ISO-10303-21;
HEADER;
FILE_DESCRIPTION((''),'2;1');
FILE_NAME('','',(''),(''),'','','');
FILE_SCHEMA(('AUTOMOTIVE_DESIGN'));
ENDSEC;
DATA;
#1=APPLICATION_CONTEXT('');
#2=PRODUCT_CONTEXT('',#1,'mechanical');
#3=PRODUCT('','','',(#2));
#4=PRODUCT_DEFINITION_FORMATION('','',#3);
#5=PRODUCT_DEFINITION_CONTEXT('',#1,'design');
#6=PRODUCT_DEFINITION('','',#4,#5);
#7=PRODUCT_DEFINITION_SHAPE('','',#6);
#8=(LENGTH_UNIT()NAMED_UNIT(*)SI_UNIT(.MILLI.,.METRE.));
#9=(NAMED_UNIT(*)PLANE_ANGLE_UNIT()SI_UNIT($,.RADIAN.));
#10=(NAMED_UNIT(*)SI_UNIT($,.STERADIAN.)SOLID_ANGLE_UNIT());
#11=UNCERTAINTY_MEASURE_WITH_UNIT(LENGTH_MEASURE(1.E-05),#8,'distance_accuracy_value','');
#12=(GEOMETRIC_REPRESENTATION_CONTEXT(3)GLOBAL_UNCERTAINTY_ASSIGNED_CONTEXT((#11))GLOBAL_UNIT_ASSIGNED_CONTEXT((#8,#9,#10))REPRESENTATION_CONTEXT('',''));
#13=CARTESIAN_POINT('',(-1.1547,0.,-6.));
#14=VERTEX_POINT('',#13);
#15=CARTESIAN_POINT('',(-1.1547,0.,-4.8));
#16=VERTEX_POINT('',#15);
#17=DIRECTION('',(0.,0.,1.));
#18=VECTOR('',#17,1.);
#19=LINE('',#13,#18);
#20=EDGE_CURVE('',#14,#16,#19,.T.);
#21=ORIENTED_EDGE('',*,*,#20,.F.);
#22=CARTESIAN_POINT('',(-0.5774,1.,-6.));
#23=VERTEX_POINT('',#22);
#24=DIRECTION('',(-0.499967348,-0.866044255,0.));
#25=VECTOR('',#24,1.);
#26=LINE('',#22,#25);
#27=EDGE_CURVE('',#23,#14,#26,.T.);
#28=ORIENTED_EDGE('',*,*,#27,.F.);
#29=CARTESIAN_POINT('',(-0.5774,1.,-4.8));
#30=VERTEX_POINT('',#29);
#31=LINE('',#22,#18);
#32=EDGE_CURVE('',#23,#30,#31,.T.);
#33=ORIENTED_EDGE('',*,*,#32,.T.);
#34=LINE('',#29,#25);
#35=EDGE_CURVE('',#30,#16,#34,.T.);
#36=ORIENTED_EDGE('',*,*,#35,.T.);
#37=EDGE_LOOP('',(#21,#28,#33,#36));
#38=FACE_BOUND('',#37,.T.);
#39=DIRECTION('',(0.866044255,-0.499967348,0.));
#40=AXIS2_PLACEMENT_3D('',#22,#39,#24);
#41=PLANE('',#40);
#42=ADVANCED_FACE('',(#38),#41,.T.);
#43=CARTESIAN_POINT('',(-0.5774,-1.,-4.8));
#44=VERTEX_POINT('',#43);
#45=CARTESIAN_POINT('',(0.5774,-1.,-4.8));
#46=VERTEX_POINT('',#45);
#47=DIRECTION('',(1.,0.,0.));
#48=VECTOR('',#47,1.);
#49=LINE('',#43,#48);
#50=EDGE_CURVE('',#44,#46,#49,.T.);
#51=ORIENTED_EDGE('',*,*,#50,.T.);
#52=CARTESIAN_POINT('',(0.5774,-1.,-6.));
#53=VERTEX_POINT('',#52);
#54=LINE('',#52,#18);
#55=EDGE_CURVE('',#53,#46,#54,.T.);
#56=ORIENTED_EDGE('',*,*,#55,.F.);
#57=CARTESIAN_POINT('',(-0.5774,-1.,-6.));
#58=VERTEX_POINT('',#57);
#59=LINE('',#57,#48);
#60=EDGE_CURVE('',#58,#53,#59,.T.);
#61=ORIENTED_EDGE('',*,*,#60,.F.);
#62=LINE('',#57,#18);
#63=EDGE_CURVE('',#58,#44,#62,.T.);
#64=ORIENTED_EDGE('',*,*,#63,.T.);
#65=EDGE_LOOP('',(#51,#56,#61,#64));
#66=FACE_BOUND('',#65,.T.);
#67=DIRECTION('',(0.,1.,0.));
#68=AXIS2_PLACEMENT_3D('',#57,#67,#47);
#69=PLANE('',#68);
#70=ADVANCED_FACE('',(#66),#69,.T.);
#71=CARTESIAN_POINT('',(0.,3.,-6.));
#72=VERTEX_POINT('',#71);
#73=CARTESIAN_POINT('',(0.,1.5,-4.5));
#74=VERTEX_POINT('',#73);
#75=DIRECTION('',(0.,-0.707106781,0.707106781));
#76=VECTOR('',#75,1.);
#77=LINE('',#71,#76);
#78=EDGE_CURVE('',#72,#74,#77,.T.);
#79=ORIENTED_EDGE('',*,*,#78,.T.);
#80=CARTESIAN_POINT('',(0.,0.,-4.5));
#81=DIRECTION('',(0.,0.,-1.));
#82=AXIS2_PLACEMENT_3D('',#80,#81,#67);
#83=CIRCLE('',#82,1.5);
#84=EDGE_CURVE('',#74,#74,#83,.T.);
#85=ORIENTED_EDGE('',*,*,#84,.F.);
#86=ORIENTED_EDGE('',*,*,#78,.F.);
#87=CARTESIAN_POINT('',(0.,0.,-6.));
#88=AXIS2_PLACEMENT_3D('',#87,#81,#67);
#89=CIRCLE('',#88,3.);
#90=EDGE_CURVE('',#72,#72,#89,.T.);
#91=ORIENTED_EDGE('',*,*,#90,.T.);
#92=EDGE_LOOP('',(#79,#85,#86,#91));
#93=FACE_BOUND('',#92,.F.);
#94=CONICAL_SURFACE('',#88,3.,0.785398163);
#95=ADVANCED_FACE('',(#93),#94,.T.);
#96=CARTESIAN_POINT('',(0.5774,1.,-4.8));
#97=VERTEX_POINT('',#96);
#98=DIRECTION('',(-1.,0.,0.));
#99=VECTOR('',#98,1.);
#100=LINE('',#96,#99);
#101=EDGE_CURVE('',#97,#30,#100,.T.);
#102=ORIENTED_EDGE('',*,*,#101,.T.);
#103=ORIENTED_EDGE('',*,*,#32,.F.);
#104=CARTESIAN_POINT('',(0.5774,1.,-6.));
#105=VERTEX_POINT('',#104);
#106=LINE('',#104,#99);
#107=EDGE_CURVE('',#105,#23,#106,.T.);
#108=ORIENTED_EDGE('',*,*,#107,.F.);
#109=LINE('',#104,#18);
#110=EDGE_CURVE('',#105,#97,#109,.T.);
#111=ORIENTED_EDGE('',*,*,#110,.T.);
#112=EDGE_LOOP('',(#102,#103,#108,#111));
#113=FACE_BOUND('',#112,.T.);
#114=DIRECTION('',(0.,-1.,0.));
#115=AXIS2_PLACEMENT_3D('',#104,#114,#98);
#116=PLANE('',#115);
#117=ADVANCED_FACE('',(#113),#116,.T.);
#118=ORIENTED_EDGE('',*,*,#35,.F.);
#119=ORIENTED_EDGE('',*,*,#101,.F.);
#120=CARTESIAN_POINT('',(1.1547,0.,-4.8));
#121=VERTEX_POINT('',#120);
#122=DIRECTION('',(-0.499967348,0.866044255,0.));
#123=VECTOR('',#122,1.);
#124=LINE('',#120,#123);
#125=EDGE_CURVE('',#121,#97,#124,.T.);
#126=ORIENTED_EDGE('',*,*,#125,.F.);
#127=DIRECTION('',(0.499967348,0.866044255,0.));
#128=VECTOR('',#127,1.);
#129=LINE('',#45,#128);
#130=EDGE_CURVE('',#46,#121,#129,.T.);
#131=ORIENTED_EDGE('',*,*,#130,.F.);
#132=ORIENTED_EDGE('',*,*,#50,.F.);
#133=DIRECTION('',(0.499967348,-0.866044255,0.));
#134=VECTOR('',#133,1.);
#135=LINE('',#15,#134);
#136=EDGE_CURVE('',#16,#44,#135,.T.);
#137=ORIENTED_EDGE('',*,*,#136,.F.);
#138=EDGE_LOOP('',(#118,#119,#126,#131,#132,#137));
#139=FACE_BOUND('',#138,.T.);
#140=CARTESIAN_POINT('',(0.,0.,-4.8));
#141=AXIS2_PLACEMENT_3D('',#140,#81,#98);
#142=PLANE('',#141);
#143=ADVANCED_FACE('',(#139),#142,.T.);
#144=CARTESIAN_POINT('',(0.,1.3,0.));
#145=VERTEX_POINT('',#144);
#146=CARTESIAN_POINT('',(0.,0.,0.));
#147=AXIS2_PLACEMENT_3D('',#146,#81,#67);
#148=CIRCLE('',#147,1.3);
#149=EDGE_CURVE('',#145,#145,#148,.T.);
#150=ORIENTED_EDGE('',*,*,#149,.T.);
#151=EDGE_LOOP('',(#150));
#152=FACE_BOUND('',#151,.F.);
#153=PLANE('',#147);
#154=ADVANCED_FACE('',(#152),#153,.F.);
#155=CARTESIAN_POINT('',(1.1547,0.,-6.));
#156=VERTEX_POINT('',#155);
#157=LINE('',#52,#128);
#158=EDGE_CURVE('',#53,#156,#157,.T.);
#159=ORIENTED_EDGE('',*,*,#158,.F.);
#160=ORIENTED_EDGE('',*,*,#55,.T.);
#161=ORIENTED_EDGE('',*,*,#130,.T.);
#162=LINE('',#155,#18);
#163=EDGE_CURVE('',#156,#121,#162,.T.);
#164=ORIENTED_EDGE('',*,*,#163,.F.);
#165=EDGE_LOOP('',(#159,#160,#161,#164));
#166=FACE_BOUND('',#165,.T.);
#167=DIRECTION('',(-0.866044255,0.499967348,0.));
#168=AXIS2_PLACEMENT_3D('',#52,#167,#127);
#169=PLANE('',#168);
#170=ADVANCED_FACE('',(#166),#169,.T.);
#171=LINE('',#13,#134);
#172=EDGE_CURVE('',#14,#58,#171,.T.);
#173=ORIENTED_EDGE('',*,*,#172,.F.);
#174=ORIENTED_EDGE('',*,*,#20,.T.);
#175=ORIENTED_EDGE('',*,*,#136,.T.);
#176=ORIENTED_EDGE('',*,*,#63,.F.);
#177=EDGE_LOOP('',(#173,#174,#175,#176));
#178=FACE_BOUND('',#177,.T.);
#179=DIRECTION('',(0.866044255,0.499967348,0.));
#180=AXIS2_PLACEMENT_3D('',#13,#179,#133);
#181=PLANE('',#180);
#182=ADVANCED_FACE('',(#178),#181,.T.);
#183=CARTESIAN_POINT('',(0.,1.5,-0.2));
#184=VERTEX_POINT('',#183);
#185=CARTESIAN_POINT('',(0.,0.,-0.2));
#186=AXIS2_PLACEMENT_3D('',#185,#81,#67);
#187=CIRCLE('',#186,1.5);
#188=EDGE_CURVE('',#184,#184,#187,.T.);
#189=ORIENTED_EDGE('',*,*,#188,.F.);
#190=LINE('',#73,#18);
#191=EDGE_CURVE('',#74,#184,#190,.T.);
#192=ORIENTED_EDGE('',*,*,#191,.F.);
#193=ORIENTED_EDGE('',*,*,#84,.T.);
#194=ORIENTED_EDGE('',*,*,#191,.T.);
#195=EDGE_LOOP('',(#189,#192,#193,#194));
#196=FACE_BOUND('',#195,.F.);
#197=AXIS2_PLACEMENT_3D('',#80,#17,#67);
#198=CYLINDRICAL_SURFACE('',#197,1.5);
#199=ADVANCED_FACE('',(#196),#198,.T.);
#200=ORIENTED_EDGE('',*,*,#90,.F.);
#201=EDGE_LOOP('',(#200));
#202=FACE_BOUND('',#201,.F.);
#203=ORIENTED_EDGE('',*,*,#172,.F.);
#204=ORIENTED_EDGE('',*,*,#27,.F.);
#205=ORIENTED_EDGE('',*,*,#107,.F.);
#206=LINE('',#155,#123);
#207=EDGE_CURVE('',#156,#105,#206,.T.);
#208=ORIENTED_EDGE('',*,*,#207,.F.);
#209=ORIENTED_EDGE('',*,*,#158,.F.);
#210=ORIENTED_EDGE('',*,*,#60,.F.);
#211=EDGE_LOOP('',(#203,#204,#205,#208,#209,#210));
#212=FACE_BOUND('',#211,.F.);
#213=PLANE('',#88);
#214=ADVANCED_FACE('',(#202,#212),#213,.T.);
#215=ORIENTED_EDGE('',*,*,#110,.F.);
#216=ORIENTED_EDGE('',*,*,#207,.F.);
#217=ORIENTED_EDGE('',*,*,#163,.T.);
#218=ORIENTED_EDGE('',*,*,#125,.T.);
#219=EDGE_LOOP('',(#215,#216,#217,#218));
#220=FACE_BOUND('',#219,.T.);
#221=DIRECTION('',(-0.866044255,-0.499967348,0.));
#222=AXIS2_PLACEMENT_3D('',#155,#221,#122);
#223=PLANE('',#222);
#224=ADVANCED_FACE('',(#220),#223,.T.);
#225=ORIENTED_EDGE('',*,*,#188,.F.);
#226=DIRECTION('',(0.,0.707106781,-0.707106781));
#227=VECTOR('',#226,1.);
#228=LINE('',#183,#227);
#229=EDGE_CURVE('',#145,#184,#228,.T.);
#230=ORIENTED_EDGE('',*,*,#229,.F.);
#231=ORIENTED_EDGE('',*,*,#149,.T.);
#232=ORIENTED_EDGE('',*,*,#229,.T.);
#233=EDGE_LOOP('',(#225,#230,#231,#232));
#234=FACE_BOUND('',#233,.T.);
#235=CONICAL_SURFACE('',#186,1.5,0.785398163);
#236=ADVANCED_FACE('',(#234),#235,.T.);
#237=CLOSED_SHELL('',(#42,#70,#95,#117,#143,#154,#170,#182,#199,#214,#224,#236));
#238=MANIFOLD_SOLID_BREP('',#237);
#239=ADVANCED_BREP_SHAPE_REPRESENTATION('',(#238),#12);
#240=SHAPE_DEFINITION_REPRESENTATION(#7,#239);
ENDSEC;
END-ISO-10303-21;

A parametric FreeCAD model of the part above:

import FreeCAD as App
import Part
import Sketcher

V = App.Vector
Q = App.Units.Quantity


def edges_at(feature, points):
    """Names of the edges that pass closest to the given points."""
    edges = feature.Shape.Edges
    near = lambda p: min(range(len(edges)), key=lambda i: edges[i].distToShape(Part.Vertex(*p))[0])
    return sorted({f"Edge{near(p) + 1}" for p in points})

doc = App.newDocument("Part")
body = doc.addObject("PartDesign::Body", "Body")

# Sketch on YZ plane
sketch1 = body.newObject("Sketcher::SketchObject", "Sketch")
sketch1.AttachmentSupport = (doc.getObject("YZ_Plane"), [""])
sketch1.MapMode = "FlatFace"
sketch1.addGeometry([
    Part.LineSegment(V(1.5, 0, 0), V(0, 0, 0)),  # 0
    Part.LineSegment(V(0, 0, 0), V(0, -6, 0)),  # 1
    Part.LineSegment(V(0, -6, 0), V(3, -6, 0)),  # 2
    Part.LineSegment(V(3, -6, 0), V(1.5, -4.5, 0)),  # 3
    Part.LineSegment(V(1.5, -4.5, 0), V(1.5, 0, 0)),  # 4
], False)
sketch1.addConstraint([
    Sketcher.Constraint("Coincident", 0, 2, 1, 1),
    Sketcher.Constraint("Coincident", 1, 2, 2, 1),
    Sketcher.Constraint("Coincident", 2, 2, 3, 1),
    Sketcher.Constraint("Coincident", 3, 2, 4, 1),
    Sketcher.Constraint("Coincident", 4, 2, 0, 1),
    Sketcher.Constraint("Horizontal", 0),
    Sketcher.Constraint("Vertical", 1),
    Sketcher.Constraint("Horizontal", 2),
    Sketcher.Constraint("Vertical", 4),
    Sketcher.Constraint("Coincident", 0, 2, -1, 1),
    Sketcher.Constraint("DistanceX", 2, 1, 2, 2, Q("3 mm")),
    Sketcher.Constraint("DistanceY", 1, 2, 1, 1, Q("6 mm")),
    Sketcher.Constraint("Angle", 3, Q("135 deg")),
    Sketcher.Constraint("DistanceX", 0, 2, 0, 1, Q("1.5 mm")),
])
revolution = body.newObject("PartDesign::Revolution", "Revolution")
revolution.Profile = sketch1
revolution.ReferenceAxis = (sketch1, ["V_Axis"])
revolution.Angle = 360

# Sketch on XY plane
sketch2 = body.newObject("Sketcher::SketchObject", "Sketch001")
sketch2.AttachmentSupport = (doc.getObject("XY_Plane"), [""])
sketch2.MapMode = "FlatFace"
sketch2.AttachmentOffset = App.Placement(V(0, 0, -6), App.Rotation())
sketch2.addGeometry([
    Part.LineSegment(V(-0.5774, -1, 0), V(-1.1547, 0, 0)),  # 0
    Part.LineSegment(V(-1.1547, 0, 0), V(-0.5774, 1, 0)),  # 1
    Part.LineSegment(V(-0.5774, 1, 0), V(0.5774, 1, 0)),  # 2
    Part.LineSegment(V(0.5774, 1, 0), V(1.1547, 0, 0)),  # 3
    Part.LineSegment(V(1.1547, 0, 0), V(0.5774, -1, 0)),  # 4
    Part.LineSegment(V(0.5774, -1, 0), V(-0.5774, -1, 0)),  # 5
], False)
sketch2.addConstraint([
    Sketcher.Constraint("Coincident", 0, 2, 1, 1),
    Sketcher.Constraint("Coincident", 1, 2, 2, 1),
    Sketcher.Constraint("Coincident", 2, 2, 3, 1),
    Sketcher.Constraint("Coincident", 3, 2, 4, 1),
    Sketcher.Constraint("Coincident", 4, 2, 5, 1),
    Sketcher.Constraint("Coincident", 5, 2, 0, 1),
    Sketcher.Constraint("Horizontal", 2),
    Sketcher.Constraint("Horizontal", 5),
    Sketcher.Constraint("Symmetric", 0, 2, 3, 2, -1, 1),
    Sketcher.Constraint("Symmetric", 1, 2, 4, 2, -1, 1),
    Sketcher.Constraint("PointOnObject", 0, 2, -1),
    Sketcher.Constraint("Parallel", 0, 3),
    Sketcher.Constraint("Vertical", 2, 2, 4, 2),
    Sketcher.Constraint("DistanceY", 4, 2, 2, 2, Q("2 mm")),
    Sketcher.Constraint("DistanceX", 2, 1, 2, 2, Q("1.1548 mm")),
    Sketcher.Constraint("DistanceX", 0, 2, 2, 2, Q("1.732 mm")),
])
pocket1 = body.newObject("PartDesign::Pocket", "Pocket")
pocket1.Profile = sketch2
pocket1.Length = 1.2
pocket1.Reversed = True
doc.recompute()

chamfer = body.newObject("PartDesign::Chamfer", "Chamfer")
chamfer.Base = (pocket1, edges_at(pocket1, [(0, -1.5, 0)]))
chamfer.Size = 0.2

doc.recompute()
